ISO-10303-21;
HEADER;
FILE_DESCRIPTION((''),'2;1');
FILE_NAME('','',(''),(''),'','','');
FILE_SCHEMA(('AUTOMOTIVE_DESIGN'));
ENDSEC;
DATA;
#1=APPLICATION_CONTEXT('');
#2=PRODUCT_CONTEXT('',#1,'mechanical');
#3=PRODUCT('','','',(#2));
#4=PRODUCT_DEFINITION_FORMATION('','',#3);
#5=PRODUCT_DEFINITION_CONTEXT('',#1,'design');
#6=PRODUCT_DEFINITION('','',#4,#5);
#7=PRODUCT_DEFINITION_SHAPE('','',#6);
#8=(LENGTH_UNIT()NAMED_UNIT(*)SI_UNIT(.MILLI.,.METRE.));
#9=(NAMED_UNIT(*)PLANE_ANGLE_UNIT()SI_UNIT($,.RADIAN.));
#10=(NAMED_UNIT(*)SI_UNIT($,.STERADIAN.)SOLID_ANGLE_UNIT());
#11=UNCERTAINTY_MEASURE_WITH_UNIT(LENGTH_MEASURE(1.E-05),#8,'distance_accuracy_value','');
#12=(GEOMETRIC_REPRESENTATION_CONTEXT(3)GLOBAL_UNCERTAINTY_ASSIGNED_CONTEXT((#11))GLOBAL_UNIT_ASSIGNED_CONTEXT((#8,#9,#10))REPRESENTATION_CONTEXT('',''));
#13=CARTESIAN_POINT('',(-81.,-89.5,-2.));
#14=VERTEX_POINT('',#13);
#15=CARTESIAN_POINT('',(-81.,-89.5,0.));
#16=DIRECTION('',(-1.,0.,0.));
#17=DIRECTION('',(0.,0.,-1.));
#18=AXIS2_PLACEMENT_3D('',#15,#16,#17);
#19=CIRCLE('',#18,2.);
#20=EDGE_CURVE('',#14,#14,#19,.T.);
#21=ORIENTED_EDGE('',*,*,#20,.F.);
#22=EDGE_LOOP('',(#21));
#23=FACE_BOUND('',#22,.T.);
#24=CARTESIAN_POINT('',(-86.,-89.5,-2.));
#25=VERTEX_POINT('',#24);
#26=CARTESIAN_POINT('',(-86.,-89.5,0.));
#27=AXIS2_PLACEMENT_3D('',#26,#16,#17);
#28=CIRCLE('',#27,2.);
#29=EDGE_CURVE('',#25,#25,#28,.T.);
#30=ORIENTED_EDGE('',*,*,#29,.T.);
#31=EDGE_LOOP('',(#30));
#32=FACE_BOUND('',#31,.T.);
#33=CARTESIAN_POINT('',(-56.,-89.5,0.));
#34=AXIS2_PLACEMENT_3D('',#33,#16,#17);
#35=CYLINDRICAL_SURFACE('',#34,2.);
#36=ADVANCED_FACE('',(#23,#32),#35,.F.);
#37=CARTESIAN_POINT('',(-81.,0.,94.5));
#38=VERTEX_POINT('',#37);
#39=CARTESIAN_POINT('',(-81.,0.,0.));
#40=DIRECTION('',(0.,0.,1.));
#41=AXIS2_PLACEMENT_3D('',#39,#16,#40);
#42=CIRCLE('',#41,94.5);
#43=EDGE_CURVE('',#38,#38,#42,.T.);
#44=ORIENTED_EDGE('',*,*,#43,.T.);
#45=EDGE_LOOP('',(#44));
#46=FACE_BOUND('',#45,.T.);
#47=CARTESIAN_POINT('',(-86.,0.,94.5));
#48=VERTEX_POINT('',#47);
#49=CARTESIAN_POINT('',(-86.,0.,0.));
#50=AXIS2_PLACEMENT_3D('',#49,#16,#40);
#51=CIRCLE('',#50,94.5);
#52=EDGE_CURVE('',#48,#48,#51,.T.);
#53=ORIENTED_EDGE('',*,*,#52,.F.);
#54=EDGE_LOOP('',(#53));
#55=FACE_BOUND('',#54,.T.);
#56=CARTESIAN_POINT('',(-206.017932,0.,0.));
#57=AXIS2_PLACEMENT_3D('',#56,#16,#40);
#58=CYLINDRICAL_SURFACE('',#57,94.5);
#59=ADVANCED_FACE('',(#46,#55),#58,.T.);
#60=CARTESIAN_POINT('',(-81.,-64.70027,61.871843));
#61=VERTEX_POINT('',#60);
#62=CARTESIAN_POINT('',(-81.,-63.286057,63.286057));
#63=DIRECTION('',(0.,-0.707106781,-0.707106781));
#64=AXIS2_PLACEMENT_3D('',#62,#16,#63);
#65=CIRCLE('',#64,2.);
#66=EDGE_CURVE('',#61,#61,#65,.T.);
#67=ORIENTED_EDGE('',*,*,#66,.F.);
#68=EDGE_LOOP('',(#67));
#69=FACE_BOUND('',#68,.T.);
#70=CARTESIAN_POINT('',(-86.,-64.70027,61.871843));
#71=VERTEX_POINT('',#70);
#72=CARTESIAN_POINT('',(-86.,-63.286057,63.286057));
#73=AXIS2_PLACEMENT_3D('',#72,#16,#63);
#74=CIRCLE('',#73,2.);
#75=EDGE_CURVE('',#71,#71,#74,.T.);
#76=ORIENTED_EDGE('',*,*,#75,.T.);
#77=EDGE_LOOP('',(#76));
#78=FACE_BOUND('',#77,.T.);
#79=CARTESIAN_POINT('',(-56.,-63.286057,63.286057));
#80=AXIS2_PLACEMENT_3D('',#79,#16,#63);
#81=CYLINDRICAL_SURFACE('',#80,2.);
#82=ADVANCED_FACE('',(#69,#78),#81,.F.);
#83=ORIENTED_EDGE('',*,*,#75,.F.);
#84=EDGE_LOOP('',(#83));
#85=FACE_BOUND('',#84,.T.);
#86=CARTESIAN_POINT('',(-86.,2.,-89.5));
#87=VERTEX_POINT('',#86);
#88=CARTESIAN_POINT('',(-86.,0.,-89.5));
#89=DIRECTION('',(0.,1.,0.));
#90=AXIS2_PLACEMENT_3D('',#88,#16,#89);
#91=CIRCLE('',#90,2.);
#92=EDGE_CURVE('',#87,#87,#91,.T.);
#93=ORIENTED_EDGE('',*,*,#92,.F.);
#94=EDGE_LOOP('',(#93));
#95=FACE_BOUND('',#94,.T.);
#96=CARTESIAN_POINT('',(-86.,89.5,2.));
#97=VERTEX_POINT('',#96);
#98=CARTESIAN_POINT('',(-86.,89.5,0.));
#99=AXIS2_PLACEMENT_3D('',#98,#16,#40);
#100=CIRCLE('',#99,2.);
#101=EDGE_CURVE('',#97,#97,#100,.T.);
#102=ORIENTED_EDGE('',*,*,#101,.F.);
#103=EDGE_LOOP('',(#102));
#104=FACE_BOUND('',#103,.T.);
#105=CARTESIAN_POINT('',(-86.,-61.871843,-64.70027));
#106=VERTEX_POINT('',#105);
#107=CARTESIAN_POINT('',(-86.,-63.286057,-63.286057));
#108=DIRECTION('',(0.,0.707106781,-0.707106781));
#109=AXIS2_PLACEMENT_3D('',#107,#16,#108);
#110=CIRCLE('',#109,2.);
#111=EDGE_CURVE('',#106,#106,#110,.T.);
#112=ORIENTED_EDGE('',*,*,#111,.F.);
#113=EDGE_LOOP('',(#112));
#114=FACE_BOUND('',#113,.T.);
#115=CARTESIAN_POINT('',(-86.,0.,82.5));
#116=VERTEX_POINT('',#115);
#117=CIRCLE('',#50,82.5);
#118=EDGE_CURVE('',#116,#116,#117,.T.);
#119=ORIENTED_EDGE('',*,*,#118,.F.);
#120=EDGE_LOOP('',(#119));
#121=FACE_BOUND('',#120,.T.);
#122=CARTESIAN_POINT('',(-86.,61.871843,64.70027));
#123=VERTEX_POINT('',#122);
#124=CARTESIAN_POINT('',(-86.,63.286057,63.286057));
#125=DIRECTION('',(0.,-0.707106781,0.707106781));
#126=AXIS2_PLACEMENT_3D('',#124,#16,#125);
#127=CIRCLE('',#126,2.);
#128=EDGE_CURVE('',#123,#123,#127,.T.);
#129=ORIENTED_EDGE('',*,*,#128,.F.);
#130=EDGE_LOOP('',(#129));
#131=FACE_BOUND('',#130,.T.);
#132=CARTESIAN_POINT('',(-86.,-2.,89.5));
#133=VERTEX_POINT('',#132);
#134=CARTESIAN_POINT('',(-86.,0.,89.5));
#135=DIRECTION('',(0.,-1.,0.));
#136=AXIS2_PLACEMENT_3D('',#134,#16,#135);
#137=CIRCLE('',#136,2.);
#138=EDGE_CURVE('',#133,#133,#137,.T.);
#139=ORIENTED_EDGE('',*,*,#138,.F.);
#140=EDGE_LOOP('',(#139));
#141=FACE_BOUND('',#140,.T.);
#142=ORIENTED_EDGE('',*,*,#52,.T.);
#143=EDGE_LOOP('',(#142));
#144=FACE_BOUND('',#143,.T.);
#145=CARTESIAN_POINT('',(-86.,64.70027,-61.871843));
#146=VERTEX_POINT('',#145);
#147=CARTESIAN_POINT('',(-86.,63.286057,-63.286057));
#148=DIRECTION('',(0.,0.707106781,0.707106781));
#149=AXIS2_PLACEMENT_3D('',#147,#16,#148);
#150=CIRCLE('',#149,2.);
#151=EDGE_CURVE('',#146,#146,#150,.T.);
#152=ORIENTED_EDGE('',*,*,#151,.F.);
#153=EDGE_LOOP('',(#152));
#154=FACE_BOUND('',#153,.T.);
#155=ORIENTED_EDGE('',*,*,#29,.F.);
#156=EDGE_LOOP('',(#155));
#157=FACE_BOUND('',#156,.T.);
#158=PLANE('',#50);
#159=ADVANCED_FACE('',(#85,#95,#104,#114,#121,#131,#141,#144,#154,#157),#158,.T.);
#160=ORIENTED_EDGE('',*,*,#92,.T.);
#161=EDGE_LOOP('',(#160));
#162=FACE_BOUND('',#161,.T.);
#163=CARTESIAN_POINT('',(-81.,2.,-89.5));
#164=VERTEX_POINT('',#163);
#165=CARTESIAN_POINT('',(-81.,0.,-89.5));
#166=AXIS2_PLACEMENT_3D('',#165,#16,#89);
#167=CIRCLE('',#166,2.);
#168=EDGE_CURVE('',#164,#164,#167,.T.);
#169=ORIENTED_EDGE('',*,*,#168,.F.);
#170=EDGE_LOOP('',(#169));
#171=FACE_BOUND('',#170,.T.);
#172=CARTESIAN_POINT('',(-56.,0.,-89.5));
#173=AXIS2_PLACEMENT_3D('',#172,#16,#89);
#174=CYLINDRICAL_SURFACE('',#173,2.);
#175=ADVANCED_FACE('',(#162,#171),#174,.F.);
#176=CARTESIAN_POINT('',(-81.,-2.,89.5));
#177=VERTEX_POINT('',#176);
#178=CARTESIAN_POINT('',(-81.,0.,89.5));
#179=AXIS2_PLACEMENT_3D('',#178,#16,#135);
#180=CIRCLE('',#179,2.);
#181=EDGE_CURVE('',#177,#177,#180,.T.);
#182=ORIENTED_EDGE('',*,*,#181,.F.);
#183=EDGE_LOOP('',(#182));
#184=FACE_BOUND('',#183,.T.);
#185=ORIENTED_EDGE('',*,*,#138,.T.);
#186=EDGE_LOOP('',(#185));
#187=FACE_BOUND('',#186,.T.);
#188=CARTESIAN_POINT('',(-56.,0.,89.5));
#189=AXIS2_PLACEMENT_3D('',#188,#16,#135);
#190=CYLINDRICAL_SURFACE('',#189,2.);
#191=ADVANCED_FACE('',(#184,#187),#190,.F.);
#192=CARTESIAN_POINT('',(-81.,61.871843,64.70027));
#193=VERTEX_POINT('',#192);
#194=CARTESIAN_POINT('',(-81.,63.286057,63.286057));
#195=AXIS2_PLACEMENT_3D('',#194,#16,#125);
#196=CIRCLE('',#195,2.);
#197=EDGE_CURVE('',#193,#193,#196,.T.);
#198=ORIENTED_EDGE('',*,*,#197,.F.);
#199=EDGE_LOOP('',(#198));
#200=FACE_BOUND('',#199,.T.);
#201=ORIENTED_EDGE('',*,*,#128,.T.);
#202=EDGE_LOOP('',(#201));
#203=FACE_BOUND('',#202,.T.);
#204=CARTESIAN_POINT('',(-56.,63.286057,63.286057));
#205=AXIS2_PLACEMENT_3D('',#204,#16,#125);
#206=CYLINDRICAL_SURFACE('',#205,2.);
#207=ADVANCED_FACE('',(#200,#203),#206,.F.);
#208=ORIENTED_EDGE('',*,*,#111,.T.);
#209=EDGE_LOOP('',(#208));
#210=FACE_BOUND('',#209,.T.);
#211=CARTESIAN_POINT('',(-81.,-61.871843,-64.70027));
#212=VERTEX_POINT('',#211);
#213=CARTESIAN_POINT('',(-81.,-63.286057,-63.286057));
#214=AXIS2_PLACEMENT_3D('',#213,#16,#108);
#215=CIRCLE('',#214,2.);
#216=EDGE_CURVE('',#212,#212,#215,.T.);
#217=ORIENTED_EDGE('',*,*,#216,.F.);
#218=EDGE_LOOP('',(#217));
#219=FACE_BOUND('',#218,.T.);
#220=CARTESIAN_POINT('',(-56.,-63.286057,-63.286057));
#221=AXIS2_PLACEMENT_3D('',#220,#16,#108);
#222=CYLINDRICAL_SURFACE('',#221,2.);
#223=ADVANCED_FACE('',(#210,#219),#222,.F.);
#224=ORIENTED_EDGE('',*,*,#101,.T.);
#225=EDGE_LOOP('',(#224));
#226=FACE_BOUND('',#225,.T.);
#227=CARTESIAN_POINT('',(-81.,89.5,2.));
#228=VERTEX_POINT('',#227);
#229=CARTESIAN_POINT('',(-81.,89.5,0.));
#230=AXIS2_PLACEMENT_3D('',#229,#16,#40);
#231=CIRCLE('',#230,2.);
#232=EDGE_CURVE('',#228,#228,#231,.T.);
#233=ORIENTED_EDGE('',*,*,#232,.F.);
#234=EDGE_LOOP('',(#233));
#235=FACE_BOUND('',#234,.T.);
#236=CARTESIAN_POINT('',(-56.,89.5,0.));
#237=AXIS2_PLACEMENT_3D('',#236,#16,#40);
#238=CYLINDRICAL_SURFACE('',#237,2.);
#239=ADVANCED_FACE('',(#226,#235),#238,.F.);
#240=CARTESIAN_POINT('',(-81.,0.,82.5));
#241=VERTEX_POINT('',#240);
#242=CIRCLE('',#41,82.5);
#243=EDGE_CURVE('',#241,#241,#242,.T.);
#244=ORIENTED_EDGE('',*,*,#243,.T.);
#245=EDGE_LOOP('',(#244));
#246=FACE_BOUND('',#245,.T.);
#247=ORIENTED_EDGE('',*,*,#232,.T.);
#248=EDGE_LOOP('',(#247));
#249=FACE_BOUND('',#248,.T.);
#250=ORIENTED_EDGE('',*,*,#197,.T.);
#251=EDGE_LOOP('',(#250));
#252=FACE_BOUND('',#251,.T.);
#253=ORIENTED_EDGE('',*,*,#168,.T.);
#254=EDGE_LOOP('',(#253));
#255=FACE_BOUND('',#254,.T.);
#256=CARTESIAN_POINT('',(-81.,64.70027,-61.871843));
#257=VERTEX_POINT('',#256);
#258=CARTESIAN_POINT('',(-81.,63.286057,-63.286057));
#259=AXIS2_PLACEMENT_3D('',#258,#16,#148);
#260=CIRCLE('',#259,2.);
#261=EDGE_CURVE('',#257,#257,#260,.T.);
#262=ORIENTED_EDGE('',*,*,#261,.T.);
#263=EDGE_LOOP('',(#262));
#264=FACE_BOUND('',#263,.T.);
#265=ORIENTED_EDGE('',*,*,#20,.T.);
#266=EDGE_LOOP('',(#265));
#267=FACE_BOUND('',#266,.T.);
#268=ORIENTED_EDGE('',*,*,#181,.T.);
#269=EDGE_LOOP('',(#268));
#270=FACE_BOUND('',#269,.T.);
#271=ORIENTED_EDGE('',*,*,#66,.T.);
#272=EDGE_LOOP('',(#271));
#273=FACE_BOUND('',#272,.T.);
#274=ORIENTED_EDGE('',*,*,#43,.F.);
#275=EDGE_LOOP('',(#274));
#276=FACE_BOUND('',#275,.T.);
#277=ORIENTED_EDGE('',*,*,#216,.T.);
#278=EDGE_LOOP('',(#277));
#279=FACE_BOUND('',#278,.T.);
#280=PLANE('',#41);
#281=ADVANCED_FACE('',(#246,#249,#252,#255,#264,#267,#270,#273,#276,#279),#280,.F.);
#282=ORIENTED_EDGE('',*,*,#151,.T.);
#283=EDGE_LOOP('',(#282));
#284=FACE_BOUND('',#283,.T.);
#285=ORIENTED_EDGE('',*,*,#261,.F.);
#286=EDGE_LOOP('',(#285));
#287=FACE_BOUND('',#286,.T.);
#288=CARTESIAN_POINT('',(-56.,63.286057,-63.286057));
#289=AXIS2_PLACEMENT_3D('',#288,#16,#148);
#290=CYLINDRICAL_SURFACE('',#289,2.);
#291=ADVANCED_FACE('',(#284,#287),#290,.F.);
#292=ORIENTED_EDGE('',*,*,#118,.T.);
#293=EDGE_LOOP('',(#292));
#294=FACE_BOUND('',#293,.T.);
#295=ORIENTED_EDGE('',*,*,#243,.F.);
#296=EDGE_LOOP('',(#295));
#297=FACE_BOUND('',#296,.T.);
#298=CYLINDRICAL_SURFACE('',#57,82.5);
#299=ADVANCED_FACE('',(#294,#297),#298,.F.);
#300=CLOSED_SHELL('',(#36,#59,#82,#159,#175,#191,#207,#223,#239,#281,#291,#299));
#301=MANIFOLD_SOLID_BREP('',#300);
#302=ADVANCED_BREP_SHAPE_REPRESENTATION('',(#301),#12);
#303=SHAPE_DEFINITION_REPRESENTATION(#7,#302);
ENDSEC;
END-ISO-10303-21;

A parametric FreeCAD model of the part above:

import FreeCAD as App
import Part
import Sketcher

doc = App.newDocument("Part")
body = doc.addObject("PartDesign::Body", "Body")

sketch1 = body.newObject("Sketcher::SketchObject", "Sketch")
sketch1.AttachmentSupport = (doc.getObject("XY_Plane"), [""])
sketch1.MapMode = "FlatFace"
sketch1.addGeometry(Part.LineSegment(App.Vector(-86, 94.5, 0), App.Vector(-86, 82.5, 0)), False)
sketch1.addGeometry(Part.LineSegment(App.Vector(-86, 82.5, 0), App.Vector(-81, 82.5, 0)), False)
sketch1.addGeometry(Part.LineSegment(App.Vector(-81, 82.5, 0), App.Vector(-81, 94.5, 0)), False)
sketch1.addGeometry(Part.LineSegment(App.Vector(-81, 94.5, 0), App.Vector(-86, 94.5, 0)), False)
sketch1.addConstraint(Sketcher.Constraint("Coincident", 0, 2, 1, 1))
sketch1.addConstraint(Sketcher.Constraint("Coincident", 1, 2, 2, 1))
sketch1.addConstraint(Sketcher.Constraint("Coincident", 2, 2, 3, 1))
sketch1.addConstraint(Sketcher.Constraint("Coincident", 3, 2, 0, 1))
sketch1.addConstraint(Sketcher.Constraint("Vertical", 0))
sketch1.addConstraint(Sketcher.Constraint("Horizontal", 1))
sketch1.addConstraint(Sketcher.Constraint("Vertical", 2))
sketch1.addConstraint(Sketcher.Constraint("Horizontal", 3))
sketch1.addConstraint(Sketcher.Constraint("DistanceX", 1, 1, 1, 2, 5.0))
sketch1.addConstraint(Sketcher.Constraint("DistanceY", 0, 2, 0, 1, 12.0))
sketch1.addConstraint(Sketcher.Constraint("DistanceX", 0, 2, -1, 1, 86.0))
sketch1.addConstraint(Sketcher.Constraint("DistanceY", -1, 1, 0, 2, 82.5))
revolution = body.newObject("PartDesign::Revolution", "Revolution")
revolution.Profile = sketch1
revolution.ReferenceAxis = (sketch1, ["H_Axis"])
revolution.Angle = 360

sketch2 = body.newObject("Sketcher::SketchObject", "Sketch001")
sketch2.AttachmentSupport = (doc.getObject("YZ_Plane"), [""])
sketch2.MapMode = "FlatFace"
sketch2.AttachmentOffset = App.Placement(App.Vector(0, 0, -86), App.Rotation())
sketch2.addGeometry(Part.Circle(App.Vector(89.5, 0, 0), App.Vector(0, 0, 1), 2), False)
sketch2.addConstraint(Sketcher.Constraint("PointOnObject", 0, 3, -1))
sketch2.addConstraint(Sketcher.Constraint("Diameter", 0, 4.0))
sketch2.addConstraint(Sketcher.Constraint("DistanceX", -1, 1, 0, 3, 89.5))
pocket1 = body.newObject("PartDesign::Pocket", "Pocket")
pocket1.Profile = sketch2
pocket1.Length = 30
pocket1.Reversed = True
doc.recompute()

polarpattern = body.newObject("PartDesign::PolarPattern", "PolarPattern")
polarpattern.Originals = [pocket1]
polarpattern.Axis = (doc.getObject("X_Axis"), [""])
polarpattern.Angle = 360
polarpattern.Occurrences = 8
body.Tip = polarpattern

doc.recompute()
